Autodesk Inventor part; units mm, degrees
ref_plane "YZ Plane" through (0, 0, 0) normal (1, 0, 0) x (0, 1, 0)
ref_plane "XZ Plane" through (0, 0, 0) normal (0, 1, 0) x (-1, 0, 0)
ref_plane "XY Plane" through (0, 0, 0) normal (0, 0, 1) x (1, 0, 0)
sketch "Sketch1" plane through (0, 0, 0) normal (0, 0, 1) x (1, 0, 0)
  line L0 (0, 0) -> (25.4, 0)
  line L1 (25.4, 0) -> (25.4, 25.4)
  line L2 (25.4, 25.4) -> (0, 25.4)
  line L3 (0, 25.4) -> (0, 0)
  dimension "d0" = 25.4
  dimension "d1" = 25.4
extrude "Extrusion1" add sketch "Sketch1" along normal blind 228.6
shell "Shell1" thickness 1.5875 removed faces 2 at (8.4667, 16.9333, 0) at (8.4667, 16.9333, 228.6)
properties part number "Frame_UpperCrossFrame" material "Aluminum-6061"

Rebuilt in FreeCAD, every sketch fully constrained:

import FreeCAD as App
import Part
import Sketcher
Q = App.Units.Quantity


def faces_at(feature, points):
    """Names of the faces that lie closest to the given points."""
    faces = feature.Shape.Faces
    near = lambda p: min(range(len(faces)), key=lambda i: faces[i].distToShape(Part.Vertex(*p))[0])
    return sorted({f"Face{near(p) + 1}" for p in points})


def add_polygon(sketch, points):
    """Adds a closed chain of lines whose ends are joined by coincident constraints."""
    first, n = sketch.GeometryCount, len(points)
    for a, b in zip(points, points[1:] + points[:1]):
        sketch.addGeometry(Part.LineSegment(App.Vector(*a, 0), App.Vector(*b, 0)), False)
    for i in range(n):
        sketch.addConstraint(Sketcher.Constraint("Coincident", first + i, 2, first + (i + 1) % n, 1))

doc = App.newDocument("Part")
body = doc.addObject("PartDesign::Body", "Body")

# Sketch on XY plane
sketch1 = body.newObject("Sketcher::SketchObject", "Sketch")
sketch1.AttachmentSupport = (doc.getObject("XY_Plane"), [""])
sketch1.MapMode = "FlatFace"
add_polygon(sketch1, [(0, 25), (0, 0), (25, 0), (25, 25)])  # lines 0-3
sketch1.addConstraint(Sketcher.Constraint("Vertical", 0))
sketch1.addConstraint(Sketcher.Constraint("Horizontal", 1))
sketch1.addConstraint(Sketcher.Constraint("Vertical", 2))
sketch1.addConstraint(Sketcher.Constraint("Horizontal", 3))
sketch1.addConstraint(Sketcher.Constraint("Coincident", 0, 2, -1, 1))
sketch1.addConstraint(Sketcher.Constraint("Equal", 3, 0))
sketch1.addConstraint(Sketcher.Constraint("DistanceX", 1, 1, 1, 2, Q("1 in")))
pad1 = body.newObject("PartDesign::Pad", "Pad")
pad1.Profile = sketch1
pad1.Length = Q("9 in")
doc.recompute()

thickness = body.newObject("PartDesign::Thickness", "Thickness")
thickness.Base = (pad1, faces_at(pad1, [(8.467, 16.933, 0), (8.467, 16.933, 228.6)]))
thickness.Value = Q("0.0625 in")
thickness.Reversed = True
thickness.Join = "Intersection"

doc.recompute()
